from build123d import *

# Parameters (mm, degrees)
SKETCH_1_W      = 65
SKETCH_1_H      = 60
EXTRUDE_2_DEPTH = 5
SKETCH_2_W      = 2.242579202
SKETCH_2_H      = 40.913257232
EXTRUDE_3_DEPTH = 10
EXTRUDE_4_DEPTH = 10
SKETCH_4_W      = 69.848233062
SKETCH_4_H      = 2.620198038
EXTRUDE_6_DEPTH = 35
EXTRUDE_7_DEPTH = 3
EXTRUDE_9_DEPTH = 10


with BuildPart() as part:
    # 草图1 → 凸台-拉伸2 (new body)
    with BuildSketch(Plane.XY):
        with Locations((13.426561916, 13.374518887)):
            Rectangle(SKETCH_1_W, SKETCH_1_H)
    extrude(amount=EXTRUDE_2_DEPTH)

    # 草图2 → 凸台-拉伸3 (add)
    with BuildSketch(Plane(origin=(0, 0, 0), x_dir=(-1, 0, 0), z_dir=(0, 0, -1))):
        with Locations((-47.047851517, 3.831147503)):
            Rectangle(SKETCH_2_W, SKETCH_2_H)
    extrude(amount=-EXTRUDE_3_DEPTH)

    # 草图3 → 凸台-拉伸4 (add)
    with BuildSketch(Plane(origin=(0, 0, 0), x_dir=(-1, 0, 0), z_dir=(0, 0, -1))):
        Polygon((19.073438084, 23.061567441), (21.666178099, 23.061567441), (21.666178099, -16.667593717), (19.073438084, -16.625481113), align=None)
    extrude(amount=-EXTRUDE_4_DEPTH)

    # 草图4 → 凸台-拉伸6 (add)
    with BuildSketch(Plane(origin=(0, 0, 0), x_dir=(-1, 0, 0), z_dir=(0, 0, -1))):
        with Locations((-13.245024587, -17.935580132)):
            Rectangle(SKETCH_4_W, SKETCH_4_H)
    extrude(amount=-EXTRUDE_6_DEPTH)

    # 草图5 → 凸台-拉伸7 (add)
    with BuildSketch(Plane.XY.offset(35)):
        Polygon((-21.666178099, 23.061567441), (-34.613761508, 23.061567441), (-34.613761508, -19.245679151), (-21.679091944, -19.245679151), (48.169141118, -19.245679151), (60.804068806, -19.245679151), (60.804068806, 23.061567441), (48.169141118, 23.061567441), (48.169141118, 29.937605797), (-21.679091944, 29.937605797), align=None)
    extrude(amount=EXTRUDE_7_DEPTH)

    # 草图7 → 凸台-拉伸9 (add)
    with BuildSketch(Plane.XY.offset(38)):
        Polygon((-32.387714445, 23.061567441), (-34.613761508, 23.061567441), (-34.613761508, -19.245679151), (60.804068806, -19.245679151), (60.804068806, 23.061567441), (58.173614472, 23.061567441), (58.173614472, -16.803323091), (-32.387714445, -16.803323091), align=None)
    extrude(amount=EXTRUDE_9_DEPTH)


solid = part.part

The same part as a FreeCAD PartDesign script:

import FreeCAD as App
import Part
import Sketcher

V = App.Vector
Q = App.Units.Quantity

doc = App.newDocument("Part")
body = doc.addObject("PartDesign::Body", "Body")

# Sketch on XY plane
sketch1 = body.newObject("Sketcher::SketchObject", "Sketch")
sketch1.AttachmentSupport = (doc.getObject("XY_Plane"), [""])
sketch1.MapMode = "FlatFace"
sketch1.addGeometry(Part.LineSegment(V(-19, 43, 0), V(-19, -17, 0)), False)
sketch1.addGeometry(Part.LineSegment(V(-19, -17, 0), V(46, -17, 0)), False)
sketch1.addGeometry(Part.LineSegment(V(46, -17, 0), V(46, 43, 0)), False)
sketch1.addGeometry(Part.LineSegment(V(46, 43, 0), V(-19, 43, 0)), False)
sketch1.addConstraint(Sketcher.Constraint("Coincident", 0, 2, 1, 1))
sketch1.addConstraint(Sketcher.Constraint("Coincident", 1, 2, 2, 1))
sketch1.addConstraint(Sketcher.Constraint("Coincident", 2, 2, 3, 1))
sketch1.addConstraint(Sketcher.Constraint("Coincident", 3, 2, 0, 1))
sketch1.addConstraint(Sketcher.Constraint("Vertical", 0))
sketch1.addConstraint(Sketcher.Constraint("Horizontal", 1))
sketch1.addConstraint(Sketcher.Constraint("Vertical", 2))
sketch1.addConstraint(Sketcher.Constraint("Horizontal", 3))
sketch1.addConstraint(Sketcher.Constraint("DistanceX", 1, 1, 1, 2, Q("65 mm")))
sketch1.addConstraint(Sketcher.Constraint("DistanceY", 0, 2, 0, 1, Q("60 mm")))
sketch1.addConstraint(Sketcher.Constraint("DistanceX", 0, 2, -1, 1, Q("19.073438 mm")))
sketch1.addConstraint(Sketcher.Constraint("DistanceY", 0, 2, -1, 1, Q("16.625481 mm")))
pad1 = body.newObject("PartDesign::Pad", "Pad")
pad1.Profile = sketch1
pad1.Length = 5

# Sketch on XY plane
sketch2 = body.newObject("Sketcher::SketchObject", "Sketch001")
sketch2.AttachmentSupport = (doc.getObject("XY_Plane"), [""])
sketch2.MapMode = "FlatFace"
sketch2.addGeometry(Part.LineSegment(V(48.2, 24.3, 0), V(48.2, -16.6, 0)), False)
sketch2.addGeometry(Part.LineSegment(V(48.2, -16.6, 0), V(45.9, -16.6, 0)), False)
sketch2.addGeometry(Part.LineSegment(V(45.9, -16.6, 0), V(45.9, 24.3, 0)), False)
sketch2.addGeometry(Part.LineSegment(V(45.9, 24.3, 0), V(48.2, 24.3, 0)), False)
sketch2.addConstraint(Sketcher.Constraint("Coincident", 0, 2, 1, 1))
sketch2.addConstraint(Sketcher.Constraint("Coincident", 1, 2, 2, 1))
sketch2.addConstraint(Sketcher.Constraint("Coincident", 2, 2, 3, 1))
sketch2.addConstraint(Sketcher.Constraint("Coincident", 3, 2, 0, 1))
sketch2.addConstraint(Sketcher.Constraint("Vertical", 0))
sketch2.addConstraint(Sketcher.Constraint("Horizontal", 1))
sketch2.addConstraint(Sketcher.Constraint("Vertical", 2))
sketch2.addConstraint(Sketcher.Constraint("Horizontal", 3))
sketch2.addConstraint(Sketcher.Constraint("DistanceX", 1, 2, 1, 1, Q("2.242579 mm")))
sketch2.addConstraint(Sketcher.Constraint("DistanceY", 0, 2, 0, 1, Q("40.913257 mm")))
sketch2.addConstraint(Sketcher.Constraint("DistanceX", -1, 1, 0, 2, Q("48.169141 mm")))
sketch2.addConstraint(Sketcher.Constraint("DistanceY", 0, 2, -1, 1, Q("16.625481 mm")))
pad2 = body.newObject("PartDesign::Pad", "Pad001")
pad2.Profile = sketch2
pad2.Length = 10

# Sketch on XY plane
sketch3 = body.newObject("Sketcher::SketchObject", "Sketch002")
sketch3.AttachmentSupport = (doc.getObject("XY_Plane"), [""])
sketch3.MapMode = "FlatFace"
sketch3.addGeometry(Part.LineSegment(V(-21.7, 23.1, 0), V(-19.1, 23.1, 0)), False)
sketch3.addGeometry(Part.LineSegment(V(-19.1, 23.1, 0), V(-19.1, -16.6, 0)), False)
sketch3.addGeometry(Part.LineSegment(V(-19.1, -16.6, 0), V(-21.7, -16.7, 0)), False)
sketch3.addGeometry(Part.LineSegment(V(-21.7, -16.7, 0), V(-21.7, 23.1, 0)), False)
sketch3.addConstraint(Sketcher.Constraint("Coincident", 0, 2, 1, 1))
sketch3.addConstraint(Sketcher.Constraint("Coincident", 1, 2, 2, 1))
sketch3.addConstraint(Sketcher.Constraint("Coincident", 2, 2, 3, 1))
sketch3.addConstraint(Sketcher.Constraint("Coincident", 3, 2, 0, 1))
sketch3.addConstraint(Sketcher.Constraint("Horizontal", 0))
sketch3.addConstraint(Sketcher.Constraint("Vertical", 1))
sketch3.addConstraint(Sketcher.Constraint("Vertical", 3))
sketch3.addConstraint(Sketcher.Constraint("DistanceX", 0, 1, 0, 2, Q("2.59274 mm")))
sketch3.addConstraint(Sketcher.Constraint("DistanceY", 1, 2, 1, 1, Q("39.687049 mm")))
sketch3.addConstraint(Sketcher.Constraint("DistanceY", 3, 1, 3, 2, Q("39.729161 mm")))
sketch3.addConstraint(Sketcher.Constraint("DistanceX", 0, 2, -1, 1, Q("19.073438 mm")))
sketch3.addConstraint(Sketcher.Constraint("DistanceY", 1, 2, -1, 1, Q("16.625481 mm")))
pad3 = body.newObject("PartDesign::Pad", "Pad002")
pad3.Profile = sketch3
pad3.Length = 10

# Sketch on XY plane
sketch4 = body.newObject("Sketcher::SketchObject", "Sketch003")
sketch4.AttachmentSupport = (doc.getObject("XY_Plane"), [""])
sketch4.MapMode = "FlatFace"
sketch4.addGeometry(Part.LineSegment(V(48.2, -16.6, 0), V(48.2, -19.2, 0)), False)
sketch4.addGeometry(Part.LineSegment(V(48.2, -19.2, 0), V(-21.7, -19.2, 0)), False)
sketch4.addGeometry(Part.LineSegment(V(-21.7, -19.2, 0), V(-21.7, -16.6, 0)), False)
sketch4.addGeometry(Part.LineSegment(V(-21.7, -16.6, 0), V(48.2, -16.6, 0)), False)
sketch4.addConstraint(Sketcher.Constraint("Coincident", 0, 2, 1, 1))
sketch4.addConstraint(Sketcher.Constraint("Coincident", 1, 2, 2, 1))
sketch4.addConstraint(Sketcher.Constraint("Coincident", 2, 2, 3, 1))
sketch4.addConstraint(Sketcher.Constraint("Coincident", 3, 2, 0, 1))
sketch4.addConstraint(Sketcher.Constraint("Vertical", 0))
sketch4.addConstraint(Sketcher.Constraint("Horizontal", 1))
sketch4.addConstraint(Sketcher.Constraint("Vertical", 2))
sketch4.addConstraint(Sketcher.Constraint("Horizontal", 3))
sketch4.addConstraint(Sketcher.Constraint("DistanceY", 0, 2, 0, 1, Q("2.620198 mm")))
sketch4.addConstraint(Sketcher.Constraint("DistanceX", 1, 2, 1, 1, Q("69.848233 mm")))
sketch4.addConstraint(Sketcher.Constraint("DistanceX", -1, 1, 0, 2, Q("48.169141 mm")))
sketch4.addConstraint(Sketcher.Constraint("DistanceY", 0, 2, -1, 1, Q("19.245679 mm")))
pad4 = body.newObject("PartDesign::Pad", "Pad003")
pad4.Profile = sketch4
pad4.Length = 35

# Sketch on XY plane
sketch5 = body.newObject("Sketcher::SketchObject", "Sketch004")
sketch5.AttachmentSupport = (doc.getObject("XY_Plane"), [""])
sketch5.MapMode = "FlatFace"
sketch5.AttachmentOffset = App.Placement(V(0, 0, 35), App.Rotation())
sketch5.addGeometry(Part.LineSegment(V(-22, 23, 0), V(-35, 23, 0)), False)
sketch5.addGeometry(Part.LineSegment(V(-35, 23, 0), V(-35, -19, 0)), False)
sketch5.addGeometry(Part.LineSegment(V(-35, -19, 0), V(61, -19, 0)), False)
sketch5.addGeometry(Part.LineSegment(V(61, -19, 0), V(61, 23, 0)), False)
sketch5.addGeometry(Part.LineSegment(V(61, 23, 0), V(48, 23, 0)), False)
sketch5.addGeometry(Part.LineSegment(V(48, 23, 0), V(48, 30, 0)), False)
sketch5.addGeometry(Part.LineSegment(V(48, 30, 0), V(-22, 30, 0)), False)
sketch5.addGeometry(Part.LineSegment(V(-22, 30, 0), V(-22, 23, 0)), False)
sketch5.addConstraint(Sketcher.Constraint("Coincident", 0, 2, 1, 1))
sketch5.addConstraint(Sketcher.Constraint("Coincident", 1, 2, 2, 1))
sketch5.addConstraint(Sketcher.Constraint("Coincident", 2, 2, 3, 1))
sketch5.addConstraint(Sketcher.Constraint("Coincident", 3, 2, 4, 1))
sketch5.addConstraint(Sketcher.Constraint("Coincident", 4, 2, 5, 1))
sketch5.addConstraint(Sketcher.Constraint("Coincident", 5, 2, 6, 1))
sketch5.addConstraint(Sketcher.Constraint("Coincident", 6, 2, 7, 1))
sketch5.addConstraint(Sketcher.Constraint("Coincident", 7, 2, 0, 1))
sketch5.addConstraint(Sketcher.Constraint("Horizontal", 0))
sketch5.addConstraint(Sketcher.Constraint("Vertical", 1))
sketch5.addConstraint(Sketcher.Constraint("Horizontal", 2))
sketch5.addConstraint(Sketcher.Constraint("Vertical", 3))
sketch5.addConstraint(Sketcher.Constraint("Horizontal", 4))
sketch5.addConstraint(Sketcher.Constraint("Vertical", 5))
sketch5.addConstraint(Sketcher.Constraint("Horizontal", 6))
sketch5.addConstraint(Sketcher.Constraint("Horizontal", 0, 2, 3, 2))
sketch5.addConstraint(Sketcher.Constraint("DistanceX", 2, 1, 2, 2, Q("95.41783 mm")))
sketch5.addConstraint(Sketcher.Constraint("DistanceY", 5, 1, 5, 2, Q("6.876038 mm")))
sketch5.addConstraint(Sketcher.Constraint("DistanceX", 0, 2, 0, 1, Q("12.947583 mm")))
sketch5.addConstraint(Sketcher.Constraint("DistanceX", 4, 2, 4, 1, Q("12.634928 mm")))
sketch5.addConstraint(Sketcher.Constraint("DistanceX", 6, 2, 6, 1, Q("69.848233 mm")))
sketch5.addConstraint(Sketcher.Constraint("DistanceY", 1, 2, 1, 1, Q("42.307247 mm")))
sketch5.addConstraint(Sketcher.Constraint("DistanceX", 0, 2, -1, 1, Q("34.613762 mm")))
sketch5.addConstraint(Sketcher.Constraint("DistanceY", 1, 2, -1, 1, Q("19.245679 mm")))
pad5 = body.newObject("PartDesign::Pad", "Pad004")
pad5.Profile = sketch5
pad5.Length = 3

# Sketch on XY plane
sketch6 = body.newObject("Sketcher::SketchObject", "Sketch005")
sketch6.AttachmentSupport = (doc.getObject("XY_Plane"), [""])
sketch6.MapMode = "FlatFace"
sketch6.AttachmentOffset = App.Placement(V(0, 0, 38), App.Rotation())
sketch6.addGeometry(Part.LineSegment(V(-32.4, 23.1, 0), V(-34.6, 23.1, 0)), False)
sketch6.addGeometry(Part.LineSegment(V(-34.6, 23.1, 0), V(-34.6, -19.2, 0)), False)
sketch6.addGeometry(Part.LineSegment(V(-34.6, -19.2, 0), V(60.8, -19.2, 0)), False)
sketch6.addGeometry(Part.LineSegment(V(60.8, -19.2, 0), V(60.8, 23.1, 0)), False)
sketch6.addGeometry(Part.LineSegment(V(60.8, 23.1, 0), V(58.2, 23.1, 0)), False)
sketch6.addGeometry(Part.LineSegment(V(58.2, 23.1, 0), V(58.2, -16.8, 0)), False)
sketch6.addGeometry(Part.LineSegment(V(58.2, -16.8, 0), V(-32.4, -16.8, 0)), False)
sketch6.addGeometry(Part.LineSegment(V(-32.4, -16.8, 0), V(-32.4, 23.1, 0)), False)
sketch6.addConstraint(Sketcher.Constraint("Coincident", 0, 2, 1, 1))
sketch6.addConstraint(Sketcher.Constraint("Coincident", 1, 2, 2, 1))
sketch6.addConstraint(Sketcher.Constraint("Coincident", 2, 2, 3, 1))
sketch6.addConstraint(Sketcher.Constraint("Coincident", 3, 2, 4, 1))
sketch6.addConstraint(Sketcher.Constraint("Coincident", 4, 2, 5, 1))
sketch6.addConstraint(Sketcher.Constraint("Coincident", 5, 2, 6, 1))
sketch6.addConstraint(Sketcher.Constraint("Coincident", 6, 2, 7, 1))
sketch6.addConstraint(Sketcher.Constraint("Coincident", 7, 2, 0, 1))
sketch6.addConstraint(Sketcher.Constraint("Horizontal", 0))
sketch6.addConstraint(Sketcher.Constraint("Vertical", 1))
sketch6.addConstraint(Sketcher.Constraint("Horizontal", 2))
sketch6.addConstraint(Sketcher.Constraint("Vertical", 3))
sketch6.addConstraint(Sketcher.Constraint("Horizontal", 4))
sketch6.addConstraint(Sketcher.Constraint("Vertical", 5))
sketch6.addConstraint(Sketcher.Constraint("Horizontal", 6))
sketch6.addConstraint(Sketcher.Constraint("Vertical", 7))
sketch6.addConstraint(Sketcher.Constraint("Horizontal", 0, 2, 3, 2))
sketch6.addConstraint(Sketcher.Constraint("DistanceX", 2, 1, 2, 2, Q("95.41783 mm")))
sketch6.addConstraint(Sketcher.Constraint("DistanceX", 6, 2, 6, 1, Q("90.561329 mm")))
sketch6.addConstraint(Sketcher.Constraint("DistanceY", 5, 2, 5, 1, Q("39.864891 mm")))
sketch6.addConstraint(Sketcher.Constraint("DistanceX", 0, 2, 0, 1, Q("2.226047 mm")))
sketch6.addConstraint(Sketcher.Constraint("DistanceY", 1, 2, 1, 1, Q("42.307247 mm")))
sketch6.addConstraint(Sketcher.Constraint("DistanceX", 0, 2, -1, 1, Q("34.613762 mm")))
sketch6.addConstraint(Sketcher.Constraint("DistanceY", 1, 2, -1, 1, Q("19.245679 mm")))
pad6 = body.newObject("PartDesign::Pad", "Pad005")
pad6.Profile = sketch6
pad6.Length = 10

doc.recompute()
